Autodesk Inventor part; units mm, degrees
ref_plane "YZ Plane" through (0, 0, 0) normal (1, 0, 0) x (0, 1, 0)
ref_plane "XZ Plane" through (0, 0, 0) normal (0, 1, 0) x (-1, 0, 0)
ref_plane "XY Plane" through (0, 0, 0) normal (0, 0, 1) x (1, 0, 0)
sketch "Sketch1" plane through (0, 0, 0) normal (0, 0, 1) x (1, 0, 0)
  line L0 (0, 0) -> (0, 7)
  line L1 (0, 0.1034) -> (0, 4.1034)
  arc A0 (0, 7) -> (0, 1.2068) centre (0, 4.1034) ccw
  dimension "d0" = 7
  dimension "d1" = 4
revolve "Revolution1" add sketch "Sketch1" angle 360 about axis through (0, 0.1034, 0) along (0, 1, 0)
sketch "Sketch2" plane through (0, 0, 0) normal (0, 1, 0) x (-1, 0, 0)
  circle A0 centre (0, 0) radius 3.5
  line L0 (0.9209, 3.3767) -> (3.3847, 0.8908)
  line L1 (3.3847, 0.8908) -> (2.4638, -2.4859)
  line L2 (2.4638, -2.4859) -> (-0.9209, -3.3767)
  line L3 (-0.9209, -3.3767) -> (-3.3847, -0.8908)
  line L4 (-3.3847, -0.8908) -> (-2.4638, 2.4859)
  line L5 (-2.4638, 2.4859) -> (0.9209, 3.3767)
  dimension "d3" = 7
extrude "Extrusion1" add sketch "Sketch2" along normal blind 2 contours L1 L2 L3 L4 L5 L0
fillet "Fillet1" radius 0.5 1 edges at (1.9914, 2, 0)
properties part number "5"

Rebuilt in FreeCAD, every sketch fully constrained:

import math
import FreeCAD as App
import Part
import Sketcher

V = App.Vector
Q = App.Units.Quantity


def edges_at(feature, points):
    """Names of the edges that pass closest to the given points."""
    edges = feature.Shape.Edges
    near = lambda p: min(range(len(edges)), key=lambda i: edges[i].distToShape(Part.Vertex(*p))[0])
    return sorted({f"Edge{near(p) + 1}" for p in points})


def add_polygon(sketch, points):
    """Adds a closed chain of lines whose ends are joined by coincident constraints."""
    first, n = sketch.GeometryCount, len(points)
    for a, b in zip(points, points[1:] + points[:1]):
        sketch.addGeometry(Part.LineSegment(App.Vector(*a, 0), App.Vector(*b, 0)), False)
    for i in range(n):
        sketch.addConstraint(Sketcher.Constraint("Coincident", first + i, 2, first + (i + 1) % n, 1))

doc = App.newDocument("Part")
body = doc.addObject("PartDesign::Body", "Body")

# Sketch on XY plane
sketch1 = body.newObject("Sketcher::SketchObject", "Sketch")
sketch1.AttachmentSupport = (doc.getObject("XY_Plane"), [""])
sketch1.MapMode = "FlatFace"
sketch1.addGeometry(Part.ArcOfCircle(Part.Circle(V(0, 4.1, 0), V(0, 0, 1), 2.9), math.radians(90), math.radians(270)), False)
sketch1.addGeometry(Part.LineSegment(V(0, 1.2, 0), V(0, 7, 0)), False)
sketch1.addConstraint(Sketcher.Constraint("Coincident", 0, 1, 1, 2))
sketch1.addConstraint(Sketcher.Constraint("Coincident", 1, 1, 0, 2))
sketch1.addConstraint(Sketcher.Constraint("Vertical", 1))
sketch1.addConstraint(Sketcher.Constraint("PointOnObject", 0, 3, -2))
sketch1.addConstraint(Sketcher.Constraint("PointOnObject", 0, 1, -2))
sketch1.addConstraint(Sketcher.Constraint("DistanceY", -1, 1, 0, 1, Q("7 mm")))
sketch1.addConstraint(Sketcher.Constraint("Radius", 0, Q("2.8966 mm")))
revolution = body.newObject("PartDesign::Revolution", "Revolution")
revolution.Profile = sketch1
revolution.ReferenceAxis = (sketch1, ["V_Axis"])
revolution.Angle = 360

# Sketch on XZ plane
sketch2 = body.newObject("Sketcher::SketchObject", "Sketch001")
sketch2.AttachmentSupport = (doc.getObject("XZ_Plane"), [""])
sketch2.MapMode = "FlatFace"
add_polygon(sketch2, [(-2.5, -2.5), (-3.4, 0.9), (-0.9, 3.4), (2.5, 2.5), (3.4, -0.9), (0.9, -3.4)])  # lines 0-5
sketch2.addConstraint(Sketcher.Constraint("Symmetric", 0, 2, 3, 2, -1, 1))
sketch2.addConstraint(Sketcher.Constraint("Symmetric", 1, 2, 4, 2, -1, 1))
sketch2.addConstraint(Sketcher.Constraint("Symmetric", 2, 2, 5, 2, -1, 1))
sketch2.addConstraint(Sketcher.Constraint("Equal", 0, 1))
sketch2.addConstraint(Sketcher.Constraint("Equal", 1, 2))
sketch2.addConstraint(Sketcher.Constraint("Distance", 0, Q("3.5 mm")))
sketch2.addConstraint(Sketcher.Constraint("DistanceX", 1, 2, -1, 1, Q("0.921 mm")))
sketch2.addConstraint(Sketcher.Constraint("DistanceY", -1, 1, 2, 2, Q("2.486 mm")))
sketch2.addConstraint(Sketcher.Constraint("DistanceY", 0, 2, 1, 2, Q("2.486 mm")))
pad1 = body.newObject("PartDesign::Pad", "Pad")
pad1.Profile = sketch2
pad1.Length = 2
pad1.Reversed = True
doc.recompute()

fillet = body.newObject("PartDesign::Fillet", "Fillet")
fillet.Base = (pad1, edges_at(pad1, [(1.991, 2, 0)]))
fillet.Radius = 0.5

doc.recompute()
